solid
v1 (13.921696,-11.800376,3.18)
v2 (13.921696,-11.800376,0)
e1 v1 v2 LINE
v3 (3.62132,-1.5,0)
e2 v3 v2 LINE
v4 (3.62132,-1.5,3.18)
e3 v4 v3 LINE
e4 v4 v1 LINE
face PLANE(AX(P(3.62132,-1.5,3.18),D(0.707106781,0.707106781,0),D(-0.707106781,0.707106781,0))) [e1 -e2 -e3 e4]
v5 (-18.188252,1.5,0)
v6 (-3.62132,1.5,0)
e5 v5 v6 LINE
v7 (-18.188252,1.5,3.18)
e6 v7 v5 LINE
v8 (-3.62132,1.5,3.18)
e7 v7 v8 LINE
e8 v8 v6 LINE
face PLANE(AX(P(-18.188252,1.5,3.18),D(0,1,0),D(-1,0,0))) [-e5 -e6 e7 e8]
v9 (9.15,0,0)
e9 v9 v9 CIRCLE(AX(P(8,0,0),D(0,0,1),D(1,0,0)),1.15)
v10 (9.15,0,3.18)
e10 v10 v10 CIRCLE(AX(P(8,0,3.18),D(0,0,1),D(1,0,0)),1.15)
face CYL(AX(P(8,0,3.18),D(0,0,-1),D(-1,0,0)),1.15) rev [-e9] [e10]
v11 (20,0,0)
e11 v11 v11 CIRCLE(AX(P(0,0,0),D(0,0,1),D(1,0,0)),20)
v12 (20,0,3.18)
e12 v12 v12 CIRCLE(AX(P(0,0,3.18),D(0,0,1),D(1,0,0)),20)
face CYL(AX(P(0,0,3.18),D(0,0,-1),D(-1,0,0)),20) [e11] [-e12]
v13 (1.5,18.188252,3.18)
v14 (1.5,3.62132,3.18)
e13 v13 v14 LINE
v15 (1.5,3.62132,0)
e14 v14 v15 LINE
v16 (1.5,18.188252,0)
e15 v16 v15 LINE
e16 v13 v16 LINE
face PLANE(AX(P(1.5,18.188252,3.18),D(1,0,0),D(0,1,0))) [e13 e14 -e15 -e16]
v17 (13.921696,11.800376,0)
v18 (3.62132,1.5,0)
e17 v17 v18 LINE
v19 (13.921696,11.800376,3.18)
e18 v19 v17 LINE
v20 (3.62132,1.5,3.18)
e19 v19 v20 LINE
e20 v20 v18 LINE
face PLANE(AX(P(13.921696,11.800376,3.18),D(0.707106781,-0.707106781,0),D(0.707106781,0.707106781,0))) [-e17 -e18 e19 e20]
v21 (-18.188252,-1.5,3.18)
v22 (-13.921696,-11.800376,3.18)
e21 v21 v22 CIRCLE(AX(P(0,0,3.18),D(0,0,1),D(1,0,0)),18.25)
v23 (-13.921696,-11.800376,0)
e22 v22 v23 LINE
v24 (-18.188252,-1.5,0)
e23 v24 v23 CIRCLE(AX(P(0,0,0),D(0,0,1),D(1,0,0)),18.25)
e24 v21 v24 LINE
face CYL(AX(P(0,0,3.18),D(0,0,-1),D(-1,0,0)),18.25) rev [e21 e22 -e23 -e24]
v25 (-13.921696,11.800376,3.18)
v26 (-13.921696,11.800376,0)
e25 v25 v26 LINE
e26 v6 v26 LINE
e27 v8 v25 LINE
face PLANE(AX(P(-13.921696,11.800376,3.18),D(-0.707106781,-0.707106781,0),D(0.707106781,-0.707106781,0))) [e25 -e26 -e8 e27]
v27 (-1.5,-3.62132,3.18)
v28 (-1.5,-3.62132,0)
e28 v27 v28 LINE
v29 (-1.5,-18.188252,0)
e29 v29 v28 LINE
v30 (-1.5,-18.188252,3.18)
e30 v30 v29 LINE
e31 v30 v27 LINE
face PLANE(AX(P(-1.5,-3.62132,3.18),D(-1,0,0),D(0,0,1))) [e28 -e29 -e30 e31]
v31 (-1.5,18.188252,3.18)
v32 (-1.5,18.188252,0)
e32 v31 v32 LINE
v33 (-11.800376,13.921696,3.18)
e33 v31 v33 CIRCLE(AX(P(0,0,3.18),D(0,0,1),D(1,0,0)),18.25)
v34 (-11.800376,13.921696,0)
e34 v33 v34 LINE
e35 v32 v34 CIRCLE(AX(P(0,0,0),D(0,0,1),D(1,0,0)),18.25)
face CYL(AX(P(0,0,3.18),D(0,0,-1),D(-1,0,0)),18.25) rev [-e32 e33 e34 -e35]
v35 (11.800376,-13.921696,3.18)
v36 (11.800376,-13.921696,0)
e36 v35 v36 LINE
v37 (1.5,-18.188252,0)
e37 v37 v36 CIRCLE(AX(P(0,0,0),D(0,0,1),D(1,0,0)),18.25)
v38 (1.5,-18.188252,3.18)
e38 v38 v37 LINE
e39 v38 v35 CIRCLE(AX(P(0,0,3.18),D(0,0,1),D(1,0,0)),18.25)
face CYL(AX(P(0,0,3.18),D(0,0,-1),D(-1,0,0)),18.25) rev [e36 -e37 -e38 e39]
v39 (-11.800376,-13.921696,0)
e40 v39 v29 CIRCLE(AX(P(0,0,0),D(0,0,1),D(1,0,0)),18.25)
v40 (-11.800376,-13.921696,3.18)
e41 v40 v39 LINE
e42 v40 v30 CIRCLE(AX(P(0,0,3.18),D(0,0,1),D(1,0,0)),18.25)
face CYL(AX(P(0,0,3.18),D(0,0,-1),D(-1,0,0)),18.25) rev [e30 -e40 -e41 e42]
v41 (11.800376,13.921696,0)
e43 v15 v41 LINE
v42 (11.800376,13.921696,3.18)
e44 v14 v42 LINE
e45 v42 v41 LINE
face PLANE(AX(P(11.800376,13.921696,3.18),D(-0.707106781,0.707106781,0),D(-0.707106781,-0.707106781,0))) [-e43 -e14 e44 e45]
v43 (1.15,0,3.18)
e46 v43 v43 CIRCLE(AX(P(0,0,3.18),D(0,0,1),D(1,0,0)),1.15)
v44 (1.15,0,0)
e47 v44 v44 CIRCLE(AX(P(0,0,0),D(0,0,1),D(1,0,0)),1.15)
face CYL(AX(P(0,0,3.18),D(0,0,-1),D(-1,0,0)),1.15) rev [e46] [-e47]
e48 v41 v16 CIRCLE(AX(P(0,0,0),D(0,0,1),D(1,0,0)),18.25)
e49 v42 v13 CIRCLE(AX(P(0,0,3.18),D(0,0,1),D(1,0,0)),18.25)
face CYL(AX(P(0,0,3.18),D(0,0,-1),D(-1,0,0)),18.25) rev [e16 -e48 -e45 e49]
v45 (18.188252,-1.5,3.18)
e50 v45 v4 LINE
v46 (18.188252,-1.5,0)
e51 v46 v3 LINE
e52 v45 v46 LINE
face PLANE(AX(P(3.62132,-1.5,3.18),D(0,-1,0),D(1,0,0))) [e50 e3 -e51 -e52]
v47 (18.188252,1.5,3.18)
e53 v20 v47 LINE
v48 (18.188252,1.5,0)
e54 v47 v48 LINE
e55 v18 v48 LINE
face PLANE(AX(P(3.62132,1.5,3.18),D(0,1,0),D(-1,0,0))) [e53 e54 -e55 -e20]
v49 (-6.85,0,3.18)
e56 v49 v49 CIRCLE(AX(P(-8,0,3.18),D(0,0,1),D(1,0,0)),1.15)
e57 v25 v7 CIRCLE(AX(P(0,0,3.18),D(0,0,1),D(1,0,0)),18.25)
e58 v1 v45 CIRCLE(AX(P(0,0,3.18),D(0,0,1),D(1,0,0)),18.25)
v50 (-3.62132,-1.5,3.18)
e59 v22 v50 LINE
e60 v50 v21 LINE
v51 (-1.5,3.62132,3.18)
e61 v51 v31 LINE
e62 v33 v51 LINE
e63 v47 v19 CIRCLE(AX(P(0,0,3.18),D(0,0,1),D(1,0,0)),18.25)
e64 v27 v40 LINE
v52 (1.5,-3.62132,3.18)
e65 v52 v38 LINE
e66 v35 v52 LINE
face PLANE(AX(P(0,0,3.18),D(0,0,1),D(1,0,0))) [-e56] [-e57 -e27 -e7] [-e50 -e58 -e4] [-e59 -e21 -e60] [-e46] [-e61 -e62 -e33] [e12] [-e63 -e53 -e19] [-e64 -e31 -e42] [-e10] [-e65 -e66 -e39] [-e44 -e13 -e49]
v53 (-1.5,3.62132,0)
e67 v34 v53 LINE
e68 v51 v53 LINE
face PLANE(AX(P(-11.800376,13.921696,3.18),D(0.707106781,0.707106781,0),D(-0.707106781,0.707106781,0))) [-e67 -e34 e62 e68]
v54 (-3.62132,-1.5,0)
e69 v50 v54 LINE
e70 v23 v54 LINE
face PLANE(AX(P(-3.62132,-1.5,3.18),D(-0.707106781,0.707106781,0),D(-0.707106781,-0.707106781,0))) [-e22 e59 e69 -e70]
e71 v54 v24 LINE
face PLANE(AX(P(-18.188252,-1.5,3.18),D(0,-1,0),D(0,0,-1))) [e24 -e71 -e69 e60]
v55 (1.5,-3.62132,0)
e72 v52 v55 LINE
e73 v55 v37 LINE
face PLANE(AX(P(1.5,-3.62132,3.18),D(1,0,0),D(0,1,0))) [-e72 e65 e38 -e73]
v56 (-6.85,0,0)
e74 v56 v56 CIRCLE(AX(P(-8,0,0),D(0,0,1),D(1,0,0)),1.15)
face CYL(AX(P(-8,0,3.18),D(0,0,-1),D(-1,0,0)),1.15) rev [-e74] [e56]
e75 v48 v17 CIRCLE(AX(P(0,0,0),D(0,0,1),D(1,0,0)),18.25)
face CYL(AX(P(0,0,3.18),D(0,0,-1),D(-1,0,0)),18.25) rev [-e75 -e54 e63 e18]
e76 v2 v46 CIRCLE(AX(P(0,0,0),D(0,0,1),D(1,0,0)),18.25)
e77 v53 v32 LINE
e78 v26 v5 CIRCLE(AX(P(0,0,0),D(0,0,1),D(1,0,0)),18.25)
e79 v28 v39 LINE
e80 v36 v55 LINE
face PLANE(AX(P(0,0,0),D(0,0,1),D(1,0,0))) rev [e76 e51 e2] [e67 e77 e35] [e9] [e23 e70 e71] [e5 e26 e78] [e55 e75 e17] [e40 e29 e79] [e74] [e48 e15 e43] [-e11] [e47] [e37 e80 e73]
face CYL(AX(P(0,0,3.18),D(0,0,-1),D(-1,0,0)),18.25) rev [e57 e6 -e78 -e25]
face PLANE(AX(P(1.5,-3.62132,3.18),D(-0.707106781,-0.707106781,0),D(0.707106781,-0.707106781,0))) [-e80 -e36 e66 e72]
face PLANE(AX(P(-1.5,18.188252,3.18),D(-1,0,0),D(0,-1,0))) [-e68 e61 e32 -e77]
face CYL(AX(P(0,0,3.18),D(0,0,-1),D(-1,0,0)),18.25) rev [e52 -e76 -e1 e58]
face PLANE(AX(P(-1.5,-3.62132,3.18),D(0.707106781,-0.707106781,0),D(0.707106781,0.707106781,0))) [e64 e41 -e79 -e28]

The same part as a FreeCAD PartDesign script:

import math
import FreeCAD as App
import Part
import Sketcher

V = App.Vector
Q = App.Units.Quantity

doc = App.newDocument("Part")
body = doc.addObject("PartDesign::Body", "Body")

# Sketch on XY plane
sketch1 = body.newObject("Sketcher::SketchObject", "Sketch")
sketch1.AttachmentSupport = (doc.getObject("XY_Plane"), [""])
sketch1.MapMode = "FlatFace"
sketch1.addGeometry(Part.Circle(V(0, 0, 0), V(0, 0, 1), 20), False)
sketch1.addGeometry(Part.LineSegment(V(-11.8, -13.9, 0), V(-1.5, -3.6, 0)), False)
sketch1.addGeometry(Part.LineSegment(V(-1.5, -3.6, 0), V(-1.5, -18.2, 0)), False)
sketch1.addGeometry(Part.ArcOfCircle(Part.Circle(V(0, 0, 0), V(0, 0, 1), 18.3), math.radians(-130), math.radians(-95)), False)
sketch1.addGeometry(Part.ArcOfCircle(Part.Circle(V(0, 0, 0), V(0, 0, 1), 18.3), math.radians(-175), math.radians(-140)), False)
sketch1.addGeometry(Part.LineSegment(V(-18.2, -1.5, 0), V(-3.6, -1.5, 0)), False)
sketch1.addGeometry(Part.LineSegment(V(-3.6, -1.5, 0), V(-13.9, -11.8, 0)), False)
sketch1.addGeometry(Part.LineSegment(V(1.5, -18.2, 0), V(1.5, -3.6, 0)), False)
sketch1.addGeometry(Part.LineSegment(V(1.5, -3.6, 0), V(11.8, -13.9, 0)), False)
sketch1.addGeometry(Part.ArcOfCircle(Part.Circle(V(0, 0, 0), V(0, 0, 1), 18.3), math.radians(-85), math.radians(-50)), False)
sketch1.addGeometry(Part.LineSegment(V(13.9, -11.8, 0), V(3.6, -1.5, 0)), False)
sketch1.addGeometry(Part.LineSegment(V(3.6, -1.5, 0), V(18.2, -1.5, 0)), False)
sketch1.addGeometry(Part.ArcOfCircle(Part.Circle(V(0, 0, 0), V(0, 0, 1), 18.3), math.radians(-40), math.radians(-5)), False)
sketch1.addGeometry(Part.LineSegment(V(-3.6, 1.5, 0), V(-18.2, 1.5, 0)), False)
sketch1.addGeometry(Part.ArcOfCircle(Part.Circle(V(0, 0, 0), V(0, 0, 1), 18.3), math.radians(140), math.radians(175)), False)
sketch1.addGeometry(Part.LineSegment(V(-13.9, 11.8, 0), V(-3.6, 1.5, 0)), False)
sketch1.addGeometry(Part.Circle(V(-8, 0, 0), V(0, 0, 1), 1.1), False)
sketch1.addGeometry(Part.ArcOfCircle(Part.Circle(V(0, 0, 0), V(0, 0, 1), 18.3), math.radians(95), math.radians(130)), False)
sketch1.addGeometry(Part.LineSegment(V(-1.5, 18.2, 0), V(-1.5, 3.6, 0)), False)
sketch1.addGeometry(Part.LineSegment(V(-1.5, 3.6, 0), V(-11.8, 13.9, 0)), False)
sketch1.addGeometry(Part.Circle(V(0, 0, 0), V(0, 0, 1), 1.1), False)
sketch1.addGeometry(Part.Circle(V(8, 0, 0), V(0, 0, 1), 1.1), False)
sketch1.addGeometry(Part.LineSegment(V(18.2, 1.5, 0), V(3.6, 1.5, 0)), False)
sketch1.addGeometry(Part.LineSegment(V(3.6, 1.5, 0), V(13.9, 11.8, 0)), False)
sketch1.addGeometry(Part.ArcOfCircle(Part.Circle(V(0, 0, 0), V(0, 0, 1), 18.3), math.radians(5), math.radians(40)), False)
sketch1.addGeometry(Part.LineSegment(V(1.5, 3.6, 0), V(1.5, 18.2, 0)), False)
sketch1.addGeometry(Part.ArcOfCircle(Part.Circle(V(0, 0, 0), V(0, 0, 1), 18.3), math.radians(50), math.radians(85)), False)
sketch1.addGeometry(Part.LineSegment(V(11.8, 13.9, 0), V(1.5, 3.6, 0)), False)
sketch1.addConstraint(Sketcher.Constraint("Coincident", 1, 2, 2, 1))
sketch1.addConstraint(Sketcher.Constraint("Coincident", 2, 2, 3, 2))
sketch1.addConstraint(Sketcher.Constraint("Coincident", 3, 1, 1, 1))
sketch1.addConstraint(Sketcher.Constraint("Coincident", 4, 1, 5, 1))
sketch1.addConstraint(Sketcher.Constraint("Coincident", 5, 2, 6, 1))
sketch1.addConstraint(Sketcher.Constraint("Coincident", 6, 2, 4, 2))
sketch1.addConstraint(Sketcher.Constraint("Coincident", 7, 2, 8, 1))
sketch1.addConstraint(Sketcher.Constraint("Coincident", 8, 2, 9, 2))
sketch1.addConstraint(Sketcher.Constraint("Coincident", 9, 1, 7, 1))
sketch1.addConstraint(Sketcher.Constraint("Coincident", 10, 2, 11, 1))
sketch1.addConstraint(Sketcher.Constraint("Coincident", 11, 2, 12, 2))
sketch1.addConstraint(Sketcher.Constraint("Coincident", 12, 1, 10, 1))
sketch1.addConstraint(Sketcher.Constraint("Coincident", 13, 2, 14, 2))
sketch1.addConstraint(Sketcher.Constraint("Coincident", 14, 1, 15, 1))
sketch1.addConstraint(Sketcher.Constraint("Coincident", 15, 2, 13, 1))
sketch1.addConstraint(Sketcher.Constraint("Coincident", 17, 1, 18, 1))
sketch1.addConstraint(Sketcher.Constraint("Coincident", 18, 2, 19, 1))
sketch1.addConstraint(Sketcher.Constraint("Coincident", 19, 2, 17, 2))
sketch1.addConstraint(Sketcher.Constraint("Coincident", 22, 2, 23, 1))
sketch1.addConstraint(Sketcher.Constraint("Coincident", 23, 2, 24, 2))
sketch1.addConstraint(Sketcher.Constraint("Coincident", 24, 1, 22, 1))
sketch1.addConstraint(Sketcher.Constraint("Coincident", 25, 2, 26, 2))
sketch1.addConstraint(Sketcher.Constraint("Coincident", 26, 1, 27, 1))
sketch1.addConstraint(Sketcher.Constraint("Coincident", 27, 2, 25, 1))
sketch1.addConstraint(Sketcher.Constraint("Vertical", 2))
sketch1.addConstraint(Sketcher.Constraint("Horizontal", 5))
sketch1.addConstraint(Sketcher.Constraint("Vertical", 7))
sketch1.addConstraint(Sketcher.Constraint("Horizontal", 11))
sketch1.addConstraint(Sketcher.Constraint("Horizontal", 13))
sketch1.addConstraint(Sketcher.Constraint("Vertical", 18))
sketch1.addConstraint(Sketcher.Constraint("Horizontal", 22))
sketch1.addConstraint(Sketcher.Constraint("Vertical", 25))
sketch1.addConstraint(Sketcher.Constraint("Coincident", 0, 3, -1, 1))
sketch1.addConstraint(Sketcher.Constraint("Coincident", 3, 3, -1, 1))
sketch1.addConstraint(Sketcher.Constraint("Coincident", 4, 3, -1, 1))
sketch1.addConstraint(Sketcher.Constraint("Coincident", 9, 3, -1, 1))
sketch1.addConstraint(Sketcher.Constraint("Coincident", 12, 3, -1, 1))
sketch1.addConstraint(Sketcher.Constraint("Coincident", 14, 3, -1, 1))
sketch1.addConstraint(Sketcher.Constraint("Coincident", 17, 3, -1, 1))
sketch1.addConstraint(Sketcher.Constraint("Coincident", 20, 3, -1, 1))
sketch1.addConstraint(Sketcher.Constraint("Coincident", 24, 3, -1, 1))
sketch1.addConstraint(Sketcher.Constraint("Coincident", 26, 3, -1, 1))
sketch1.addConstraint(Sketcher.Constraint("Equal", 3, 4))
sketch1.addConstraint(Sketcher.Constraint("Equal", 4, 9))
sketch1.addConstraint(Sketcher.Constraint("Equal", 9, 12))
sketch1.addConstraint(Sketcher.Constraint("Equal", 12, 14))
sketch1.addConstraint(Sketcher.Constraint("Equal", 14, 17))
sketch1.addConstraint(Sketcher.Constraint("Equal", 16, 20))
sketch1.addConstraint(Sketcher.Constraint("Equal", 20, 21))
sketch1.addConstraint(Sketcher.Constraint("Equal", 17, 24))
sketch1.addConstraint(Sketcher.Constraint("Equal", 24, 26))
sketch1.addConstraint(Sketcher.Constraint("Symmetric", 16, 3, 21, 3, -1, 1))
sketch1.addConstraint(Sketcher.Constraint("Symmetric", 10, 2, 15, 2, -1, 1))
sketch1.addConstraint(Sketcher.Constraint("Symmetric", 7, 2, 18, 2, -1, 1))
sketch1.addConstraint(Sketcher.Constraint("Symmetric", 5, 2, 22, 2, -1, 1))
sketch1.addConstraint(Sketcher.Constraint("Symmetric", 1, 2, 27, 2, -1, 1))
sketch1.addConstraint(Sketcher.Constraint("Symmetric", 1, 2, 7, 2, -2))
sketch1.addConstraint(Sketcher.Constraint("Symmetric", 5, 2, 10, 2, -2))
sketch1.addConstraint(Sketcher.Constraint("PointOnObject", 16, 3, -1))
sketch1.addConstraint(Sketcher.Constraint("Parallel", 1, 6))
sketch1.addConstraint(Sketcher.Constraint("Perpendicular", 6, 8))
sketch1.addConstraint(Sketcher.Constraint("Parallel", 8, 10))
sketch1.addConstraint(Sketcher.Constraint("Parallel", 10, 15))
sketch1.addConstraint(Sketcher.Constraint("Parallel", 15, 19))
sketch1.addConstraint(Sketcher.Constraint("Perpendicular", 19, 23))
sketch1.addConstraint(Sketcher.Constraint("Parallel", 23, 27))
sketch1.addConstraint(Sketcher.Constraint("Horizontal", 3, 1, 8, 2))
sketch1.addConstraint(Sketcher.Constraint("Equal", 22, 2))
sketch1.addConstraint(Sketcher.Constraint("Equal", 1, 6))
sketch1.addConstraint(Sketcher.Constraint("Diameter", 0, Q("40 mm")))
sketch1.addConstraint(Sketcher.Constraint("Diameter", 16, Q("2.3 mm")))
sketch1.addConstraint(Sketcher.Constraint("Radius", 3, Q("18.25 mm")))
sketch1.addConstraint(Sketcher.Constraint("DistanceX", 16, 3, -1, 1, Q("8 mm")))
sketch1.addConstraint(Sketcher.Constraint("DistanceX", 1, 2, 7, 2, Q("3 mm")))
sketch1.addConstraint(Sketcher.Constraint("DistanceX", 5, 1, 5, 2, Q("14.566931 mm")))
pad1 = body.newObject("PartDesign::Pad", "Pad")
pad1.Profile = sketch1
pad1.Length = 3.18

doc.recompute()
